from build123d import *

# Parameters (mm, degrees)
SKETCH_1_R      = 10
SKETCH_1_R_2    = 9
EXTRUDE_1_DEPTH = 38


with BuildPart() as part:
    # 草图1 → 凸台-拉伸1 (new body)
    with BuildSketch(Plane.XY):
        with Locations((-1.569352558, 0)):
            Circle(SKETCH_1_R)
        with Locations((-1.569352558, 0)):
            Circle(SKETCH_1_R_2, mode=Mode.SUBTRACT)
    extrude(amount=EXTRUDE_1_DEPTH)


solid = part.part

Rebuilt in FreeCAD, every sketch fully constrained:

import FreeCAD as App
import Part
import Sketcher
from FreeCAD import Vector
Q = App.Units.Quantity

doc = App.newDocument("Part")
body = doc.addObject("PartDesign::Body", "Body")

sketch1 = body.newObject("Sketcher::SketchObject", "Sketch")
sketch1.AttachmentSupport = (doc.getObject("XY_Plane"), [""])
sketch1.MapMode = "FlatFace"
sketch1.addGeometry([
    Part.Circle(Vector(-1.569353, 0, 0), Vector(0, 0, 1), 10),
    Part.Circle(Vector(-1.569353, 0, 0), Vector(0, 0, 1), 9),
], False)
sketch1.addConstraint([
    Sketcher.Constraint("Coincident", 1, 3, 0, 3),
    Sketcher.Constraint("PointOnObject", 0, 3, -1),
    Sketcher.Constraint("Diameter", 0, Q("20 mm")),
    Sketcher.Constraint("Diameter", 1, Q("18 mm")),
    Sketcher.Constraint("DistanceX", 0, 3, -1, 1, Q("1.569353 mm")),
])
pad1 = body.newObject("PartDesign::Pad", "Pad")
pad1.Profile = sketch1
pad1.Length = 38

doc.recompute()
